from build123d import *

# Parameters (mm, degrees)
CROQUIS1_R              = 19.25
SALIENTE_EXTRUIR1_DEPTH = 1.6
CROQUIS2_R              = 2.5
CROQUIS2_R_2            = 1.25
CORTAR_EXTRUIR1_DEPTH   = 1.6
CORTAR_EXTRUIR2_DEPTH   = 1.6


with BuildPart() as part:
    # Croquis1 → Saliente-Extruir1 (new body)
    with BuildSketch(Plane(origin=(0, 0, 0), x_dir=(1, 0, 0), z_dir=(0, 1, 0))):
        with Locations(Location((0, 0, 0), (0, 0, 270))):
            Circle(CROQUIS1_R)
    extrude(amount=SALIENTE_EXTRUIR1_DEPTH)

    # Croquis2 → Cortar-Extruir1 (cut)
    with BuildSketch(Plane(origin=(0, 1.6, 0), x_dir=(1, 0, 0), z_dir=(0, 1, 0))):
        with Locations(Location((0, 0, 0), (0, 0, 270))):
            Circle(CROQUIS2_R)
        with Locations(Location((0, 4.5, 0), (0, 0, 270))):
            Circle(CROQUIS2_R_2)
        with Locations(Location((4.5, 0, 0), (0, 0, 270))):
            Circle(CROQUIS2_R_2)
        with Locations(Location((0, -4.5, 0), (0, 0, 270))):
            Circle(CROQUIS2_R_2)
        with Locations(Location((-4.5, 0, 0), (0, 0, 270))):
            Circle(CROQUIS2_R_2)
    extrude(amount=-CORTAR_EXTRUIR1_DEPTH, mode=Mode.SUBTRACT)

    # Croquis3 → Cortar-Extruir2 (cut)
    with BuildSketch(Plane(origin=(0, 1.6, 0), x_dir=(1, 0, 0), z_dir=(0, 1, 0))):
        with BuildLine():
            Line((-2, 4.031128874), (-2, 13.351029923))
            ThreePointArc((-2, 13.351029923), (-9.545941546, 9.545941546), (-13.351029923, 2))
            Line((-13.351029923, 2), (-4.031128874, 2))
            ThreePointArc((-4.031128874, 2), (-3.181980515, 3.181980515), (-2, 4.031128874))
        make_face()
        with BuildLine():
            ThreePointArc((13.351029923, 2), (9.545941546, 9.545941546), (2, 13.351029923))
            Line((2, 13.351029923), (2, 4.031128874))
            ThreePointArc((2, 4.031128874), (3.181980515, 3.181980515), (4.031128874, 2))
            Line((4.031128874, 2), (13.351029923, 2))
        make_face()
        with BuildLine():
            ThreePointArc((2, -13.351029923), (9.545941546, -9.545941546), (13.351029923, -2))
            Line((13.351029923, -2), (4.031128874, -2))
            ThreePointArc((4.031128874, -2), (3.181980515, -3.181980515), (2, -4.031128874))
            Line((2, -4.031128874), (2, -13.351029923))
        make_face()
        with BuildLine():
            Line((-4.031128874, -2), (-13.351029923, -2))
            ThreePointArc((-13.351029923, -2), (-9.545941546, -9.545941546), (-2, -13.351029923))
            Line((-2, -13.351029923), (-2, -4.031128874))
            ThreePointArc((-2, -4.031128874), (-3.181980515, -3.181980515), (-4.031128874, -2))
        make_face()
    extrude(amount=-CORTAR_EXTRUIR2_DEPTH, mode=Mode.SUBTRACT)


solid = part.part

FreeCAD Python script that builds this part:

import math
import FreeCAD as App
import Part
import Sketcher

V = App.Vector
Q = App.Units.Quantity

doc = App.newDocument("Part")
params = doc.addObject("Spreadsheet::Sheet", "Params")
for row, (alias, value) in enumerate([
    ("sketch1_diameter", "38.5 mm"),
    ("pad1_length", "1.6 mm"),
    ("sketch2_diameter", "5 mm"),
    ("sketch2_diameter2", "2.5 mm"),
    ("pocket1_length", "1.6 mm"),
    ("sketch3_radius", "13.5 mm"),
    ("sketch3_radius2", "4.5 mm"),
    ("pocket2_length", "1.6 mm"),
], start=1):
    params.set(f"A{row}", alias)
    params.set(f"B{row}", "=" + value)
    params.setAlias(f"B{row}", alias)

body = doc.addObject("PartDesign::Body", "Body")

sketch1 = doc.addObject("Sketcher::SketchObject", "Sketch")
body.addObject(sketch1)
sketch1.AttachmentSupport = (doc.XZ_Plane, [""])
sketch1.MapMode = "FlatFace"
sketch1.addGeometry(Part.Circle(V(0, 0, 0), V(0, 0, 1), 19), False)
sketch1.addConstraint([
    Sketcher.Constraint("Coincident", 0, 3, -1, 1),
    Sketcher.Constraint("Diameter", 0, Q("38.5 mm")),
])
sketch1.setExpression("Constraints[1]", "Params.sketch1_diameter")
pad1 = doc.addObject("PartDesign::Pad", "Pad")
body.addObject(pad1)
pad1.Profile = sketch1
pad1.setExpression("Length", "Params.pad1_length")
pad1.Reversed = True

sketch2 = doc.addObject("Sketcher::SketchObject", "Sketch001")
body.addObject(sketch2)
sketch2.AttachmentSupport = (doc.XZ_Plane, [""])
sketch2.MapMode = "FlatFace"
sketch2.AttachmentOffset = App.Placement(V(0, 0, -1.6), App.Rotation())
sketch2.addGeometry([
    Part.Circle(V(0, 0, 0), V(0, 0, 1), 2.5),
    Part.Circle(V(0, -4.5, 0), V(0, 0, 1), 1.2),
    Part.Circle(V(4.5, 0, 0), V(0, 0, 1), 1.2),
    Part.Circle(V(0, 4.5, 0), V(0, 0, 1), 1.2),
    Part.Circle(V(-4.5, 0, 0), V(0, 0, 1), 1.2),
], False)
sketch2.addConstraint([
    Sketcher.Constraint("Coincident", 0, 3, -1, 1),
    Sketcher.Constraint("Equal", 1, 2),
    Sketcher.Constraint("Equal", 2, 3),
    Sketcher.Constraint("Equal", 3, 4),
    Sketcher.Constraint("Symmetric", 1, 3, 3, 3, -1, 1),
    Sketcher.Constraint("Symmetric", 2, 3, 4, 3, -1, 1),
    Sketcher.Constraint("PointOnObject", 1, 3, -2),
    Sketcher.Constraint("PointOnObject", 2, 3, -1),
    Sketcher.Constraint("Diameter", 0, Q("5 mm")),
    Sketcher.Constraint("Diameter", 1, Q("2.5 mm")),
    Sketcher.Constraint("DistanceY", 1, 3, 3, 3, Q("9 mm")),
    Sketcher.Constraint("DistanceX", 4, 3, 2, 3, Q("9 mm")),
])
sketch2.setExpression("Constraints[8]", "Params.sketch2_diameter")
sketch2.setExpression("Constraints[9]", "Params.sketch2_diameter2")
pocket1 = doc.addObject("PartDesign::Pocket", "Pocket")
body.addObject(pocket1)
pocket1.Profile = sketch2
pocket1.setExpression("Length", "Params.pocket1_length")
pocket1.Reversed = True

sketch3 = doc.addObject("Sketcher::SketchObject", "Sketch002")
body.addObject(sketch3)
sketch3.AttachmentSupport = (doc.XZ_Plane, [""])
sketch3.MapMode = "FlatFace"
sketch3.AttachmentOffset = App.Placement(V(0, 0, -1.6), App.Rotation())
sketch3.addGeometry([
    Part.LineSegment(V(-2, -4, 0), V(-2, -13.4, 0)),
    Part.ArcOfCircle(Part.Circle(V(0, 0, 0), V(0, 0, 1), 13.5), math.radians(-171), math.radians(-99)),
    Part.LineSegment(V(-13.4, -2, 0), V(-4, -2, 0)),
    Part.ArcOfCircle(Part.Circle(V(0, 0, 0), V(0, 0, 1), 4.5), math.radians(-154), math.radians(-116)),
    Part.ArcOfCircle(Part.Circle(V(0, 0, 0), V(0, 0, 1), 13.5), math.radians(-81), math.radians(-9)),
    Part.LineSegment(V(2, -13.4, 0), V(2, -4, 0)),
    Part.ArcOfCircle(Part.Circle(V(0, 0, 0), V(0, 0, 1), 4.5), math.radians(-64), math.radians(-26)),
    Part.LineSegment(V(4, -2, 0), V(13.4, -2, 0)),
    Part.ArcOfCircle(Part.Circle(V(0, 0, 0), V(0, 0, 1), 13.5), math.radians(9), math.radians(81)),
    Part.LineSegment(V(13.4, 2, 0), V(4, 2, 0)),
    Part.ArcOfCircle(Part.Circle(V(0, 0, 0), V(0, 0, 1), 4.5), math.radians(26), math.radians(64)),
    Part.LineSegment(V(2, 4, 0), V(2, 13.4, 0)),
    Part.LineSegment(V(-4, 2, 0), V(-13.4, 2, 0)),
    Part.ArcOfCircle(Part.Circle(V(0, 0, 0), V(0, 0, 1), 13.5), math.radians(99), math.radians(171)),
    Part.LineSegment(V(-2, 13.4, 0), V(-2, 4, 0)),
    Part.ArcOfCircle(Part.Circle(V(0, 0, 0), V(0, 0, 1), 4.5), math.radians(116), math.radians(154)),
], False)
sketch3.addConstraint([
    Sketcher.Constraint("Coincident", 0, 2, 1, 2),
    Sketcher.Constraint("Coincident", 1, 1, 2, 1),
    Sketcher.Constraint("Coincident", 2, 2, 3, 1),
    Sketcher.Constraint("Coincident", 3, 2, 0, 1),
    Sketcher.Constraint("Coincident", 4, 1, 5, 1),
    Sketcher.Constraint("Coincident", 5, 2, 6, 1),
    Sketcher.Constraint("Coincident", 6, 2, 7, 1),
    Sketcher.Constraint("Coincident", 7, 2, 4, 2),
    Sketcher.Constraint("Coincident", 8, 1, 9, 1),
    Sketcher.Constraint("Coincident", 9, 2, 10, 1),
    Sketcher.Constraint("Coincident", 10, 2, 11, 1),
    Sketcher.Constraint("Coincident", 11, 2, 8, 2),
    Sketcher.Constraint("Coincident", 12, 2, 13, 2),
    Sketcher.Constraint("Coincident", 13, 1, 14, 1),
    Sketcher.Constraint("Coincident", 14, 2, 15, 1),
    Sketcher.Constraint("Coincident", 15, 2, 12, 1),
    Sketcher.Constraint("Vertical", 0),
    Sketcher.Constraint("Horizontal", 2),
    Sketcher.Constraint("Vertical", 5),
    Sketcher.Constraint("Horizontal", 7),
    Sketcher.Constraint("Horizontal", 9),
    Sketcher.Constraint("Vertical", 11),
    Sketcher.Constraint("Horizontal", 12),
    Sketcher.Constraint("Vertical", 14),
    Sketcher.Constraint("Coincident", 1, 3, -1, 1),
    Sketcher.Constraint("Coincident", 3, 3, -1, 1),
    Sketcher.Constraint("Coincident", 4, 3, -1, 1),
    Sketcher.Constraint("Coincident", 6, 3, -1, 1),
    Sketcher.Constraint("Coincident", 8, 3, -1, 1),
    Sketcher.Constraint("Coincident", 10, 3, -1, 1),
    Sketcher.Constraint("Coincident", 13, 3, -1, 1),
    Sketcher.Constraint("Coincident", 15, 3, -1, 1),
    Sketcher.Constraint("Equal", 1, 4),
    Sketcher.Constraint("Equal", 3, 6),
    Sketcher.Constraint("Equal", 4, 8),
    Sketcher.Constraint("Equal", 6, 10),
    Sketcher.Constraint("Equal", 8, 13),
    Sketcher.Constraint("Equal", 10, 15),
    Sketcher.Constraint("Horizontal", 0, 2, 4, 1),
    Sketcher.Constraint("Horizontal", 2, 2, 6, 2),
    Sketcher.Constraint("Horizontal", 9, 2, 12, 2),
    Sketcher.Constraint("Horizontal", 11, 2, 13, 1),
    Sketcher.Constraint("Vertical", 7, 2, 8, 1),
    Sketcher.Constraint("Vertical", 5, 2, 10, 2),
    Sketcher.Constraint("Equal", 12, 0),
    Sketcher.Constraint("Radius", 1, Q("13.5 mm")),
    Sketcher.Constraint("Radius", 3, Q("4.5 mm")),
    Sketcher.Constraint("DistanceX", 0, 2, -1, 1, Q("2 mm")),
])
sketch3.setExpression("Constraints[45]", "Params.sketch3_radius")
sketch3.setExpression("Constraints[46]", "Params.sketch3_radius2")
pocket2 = doc.addObject("PartDesign::Pocket", "Pocket001")
body.addObject(pocket2)
pocket2.Profile = sketch3
pocket2.setExpression("Length", "Params.pocket2_length")
pocket2.Reversed = True

doc.recompute()
